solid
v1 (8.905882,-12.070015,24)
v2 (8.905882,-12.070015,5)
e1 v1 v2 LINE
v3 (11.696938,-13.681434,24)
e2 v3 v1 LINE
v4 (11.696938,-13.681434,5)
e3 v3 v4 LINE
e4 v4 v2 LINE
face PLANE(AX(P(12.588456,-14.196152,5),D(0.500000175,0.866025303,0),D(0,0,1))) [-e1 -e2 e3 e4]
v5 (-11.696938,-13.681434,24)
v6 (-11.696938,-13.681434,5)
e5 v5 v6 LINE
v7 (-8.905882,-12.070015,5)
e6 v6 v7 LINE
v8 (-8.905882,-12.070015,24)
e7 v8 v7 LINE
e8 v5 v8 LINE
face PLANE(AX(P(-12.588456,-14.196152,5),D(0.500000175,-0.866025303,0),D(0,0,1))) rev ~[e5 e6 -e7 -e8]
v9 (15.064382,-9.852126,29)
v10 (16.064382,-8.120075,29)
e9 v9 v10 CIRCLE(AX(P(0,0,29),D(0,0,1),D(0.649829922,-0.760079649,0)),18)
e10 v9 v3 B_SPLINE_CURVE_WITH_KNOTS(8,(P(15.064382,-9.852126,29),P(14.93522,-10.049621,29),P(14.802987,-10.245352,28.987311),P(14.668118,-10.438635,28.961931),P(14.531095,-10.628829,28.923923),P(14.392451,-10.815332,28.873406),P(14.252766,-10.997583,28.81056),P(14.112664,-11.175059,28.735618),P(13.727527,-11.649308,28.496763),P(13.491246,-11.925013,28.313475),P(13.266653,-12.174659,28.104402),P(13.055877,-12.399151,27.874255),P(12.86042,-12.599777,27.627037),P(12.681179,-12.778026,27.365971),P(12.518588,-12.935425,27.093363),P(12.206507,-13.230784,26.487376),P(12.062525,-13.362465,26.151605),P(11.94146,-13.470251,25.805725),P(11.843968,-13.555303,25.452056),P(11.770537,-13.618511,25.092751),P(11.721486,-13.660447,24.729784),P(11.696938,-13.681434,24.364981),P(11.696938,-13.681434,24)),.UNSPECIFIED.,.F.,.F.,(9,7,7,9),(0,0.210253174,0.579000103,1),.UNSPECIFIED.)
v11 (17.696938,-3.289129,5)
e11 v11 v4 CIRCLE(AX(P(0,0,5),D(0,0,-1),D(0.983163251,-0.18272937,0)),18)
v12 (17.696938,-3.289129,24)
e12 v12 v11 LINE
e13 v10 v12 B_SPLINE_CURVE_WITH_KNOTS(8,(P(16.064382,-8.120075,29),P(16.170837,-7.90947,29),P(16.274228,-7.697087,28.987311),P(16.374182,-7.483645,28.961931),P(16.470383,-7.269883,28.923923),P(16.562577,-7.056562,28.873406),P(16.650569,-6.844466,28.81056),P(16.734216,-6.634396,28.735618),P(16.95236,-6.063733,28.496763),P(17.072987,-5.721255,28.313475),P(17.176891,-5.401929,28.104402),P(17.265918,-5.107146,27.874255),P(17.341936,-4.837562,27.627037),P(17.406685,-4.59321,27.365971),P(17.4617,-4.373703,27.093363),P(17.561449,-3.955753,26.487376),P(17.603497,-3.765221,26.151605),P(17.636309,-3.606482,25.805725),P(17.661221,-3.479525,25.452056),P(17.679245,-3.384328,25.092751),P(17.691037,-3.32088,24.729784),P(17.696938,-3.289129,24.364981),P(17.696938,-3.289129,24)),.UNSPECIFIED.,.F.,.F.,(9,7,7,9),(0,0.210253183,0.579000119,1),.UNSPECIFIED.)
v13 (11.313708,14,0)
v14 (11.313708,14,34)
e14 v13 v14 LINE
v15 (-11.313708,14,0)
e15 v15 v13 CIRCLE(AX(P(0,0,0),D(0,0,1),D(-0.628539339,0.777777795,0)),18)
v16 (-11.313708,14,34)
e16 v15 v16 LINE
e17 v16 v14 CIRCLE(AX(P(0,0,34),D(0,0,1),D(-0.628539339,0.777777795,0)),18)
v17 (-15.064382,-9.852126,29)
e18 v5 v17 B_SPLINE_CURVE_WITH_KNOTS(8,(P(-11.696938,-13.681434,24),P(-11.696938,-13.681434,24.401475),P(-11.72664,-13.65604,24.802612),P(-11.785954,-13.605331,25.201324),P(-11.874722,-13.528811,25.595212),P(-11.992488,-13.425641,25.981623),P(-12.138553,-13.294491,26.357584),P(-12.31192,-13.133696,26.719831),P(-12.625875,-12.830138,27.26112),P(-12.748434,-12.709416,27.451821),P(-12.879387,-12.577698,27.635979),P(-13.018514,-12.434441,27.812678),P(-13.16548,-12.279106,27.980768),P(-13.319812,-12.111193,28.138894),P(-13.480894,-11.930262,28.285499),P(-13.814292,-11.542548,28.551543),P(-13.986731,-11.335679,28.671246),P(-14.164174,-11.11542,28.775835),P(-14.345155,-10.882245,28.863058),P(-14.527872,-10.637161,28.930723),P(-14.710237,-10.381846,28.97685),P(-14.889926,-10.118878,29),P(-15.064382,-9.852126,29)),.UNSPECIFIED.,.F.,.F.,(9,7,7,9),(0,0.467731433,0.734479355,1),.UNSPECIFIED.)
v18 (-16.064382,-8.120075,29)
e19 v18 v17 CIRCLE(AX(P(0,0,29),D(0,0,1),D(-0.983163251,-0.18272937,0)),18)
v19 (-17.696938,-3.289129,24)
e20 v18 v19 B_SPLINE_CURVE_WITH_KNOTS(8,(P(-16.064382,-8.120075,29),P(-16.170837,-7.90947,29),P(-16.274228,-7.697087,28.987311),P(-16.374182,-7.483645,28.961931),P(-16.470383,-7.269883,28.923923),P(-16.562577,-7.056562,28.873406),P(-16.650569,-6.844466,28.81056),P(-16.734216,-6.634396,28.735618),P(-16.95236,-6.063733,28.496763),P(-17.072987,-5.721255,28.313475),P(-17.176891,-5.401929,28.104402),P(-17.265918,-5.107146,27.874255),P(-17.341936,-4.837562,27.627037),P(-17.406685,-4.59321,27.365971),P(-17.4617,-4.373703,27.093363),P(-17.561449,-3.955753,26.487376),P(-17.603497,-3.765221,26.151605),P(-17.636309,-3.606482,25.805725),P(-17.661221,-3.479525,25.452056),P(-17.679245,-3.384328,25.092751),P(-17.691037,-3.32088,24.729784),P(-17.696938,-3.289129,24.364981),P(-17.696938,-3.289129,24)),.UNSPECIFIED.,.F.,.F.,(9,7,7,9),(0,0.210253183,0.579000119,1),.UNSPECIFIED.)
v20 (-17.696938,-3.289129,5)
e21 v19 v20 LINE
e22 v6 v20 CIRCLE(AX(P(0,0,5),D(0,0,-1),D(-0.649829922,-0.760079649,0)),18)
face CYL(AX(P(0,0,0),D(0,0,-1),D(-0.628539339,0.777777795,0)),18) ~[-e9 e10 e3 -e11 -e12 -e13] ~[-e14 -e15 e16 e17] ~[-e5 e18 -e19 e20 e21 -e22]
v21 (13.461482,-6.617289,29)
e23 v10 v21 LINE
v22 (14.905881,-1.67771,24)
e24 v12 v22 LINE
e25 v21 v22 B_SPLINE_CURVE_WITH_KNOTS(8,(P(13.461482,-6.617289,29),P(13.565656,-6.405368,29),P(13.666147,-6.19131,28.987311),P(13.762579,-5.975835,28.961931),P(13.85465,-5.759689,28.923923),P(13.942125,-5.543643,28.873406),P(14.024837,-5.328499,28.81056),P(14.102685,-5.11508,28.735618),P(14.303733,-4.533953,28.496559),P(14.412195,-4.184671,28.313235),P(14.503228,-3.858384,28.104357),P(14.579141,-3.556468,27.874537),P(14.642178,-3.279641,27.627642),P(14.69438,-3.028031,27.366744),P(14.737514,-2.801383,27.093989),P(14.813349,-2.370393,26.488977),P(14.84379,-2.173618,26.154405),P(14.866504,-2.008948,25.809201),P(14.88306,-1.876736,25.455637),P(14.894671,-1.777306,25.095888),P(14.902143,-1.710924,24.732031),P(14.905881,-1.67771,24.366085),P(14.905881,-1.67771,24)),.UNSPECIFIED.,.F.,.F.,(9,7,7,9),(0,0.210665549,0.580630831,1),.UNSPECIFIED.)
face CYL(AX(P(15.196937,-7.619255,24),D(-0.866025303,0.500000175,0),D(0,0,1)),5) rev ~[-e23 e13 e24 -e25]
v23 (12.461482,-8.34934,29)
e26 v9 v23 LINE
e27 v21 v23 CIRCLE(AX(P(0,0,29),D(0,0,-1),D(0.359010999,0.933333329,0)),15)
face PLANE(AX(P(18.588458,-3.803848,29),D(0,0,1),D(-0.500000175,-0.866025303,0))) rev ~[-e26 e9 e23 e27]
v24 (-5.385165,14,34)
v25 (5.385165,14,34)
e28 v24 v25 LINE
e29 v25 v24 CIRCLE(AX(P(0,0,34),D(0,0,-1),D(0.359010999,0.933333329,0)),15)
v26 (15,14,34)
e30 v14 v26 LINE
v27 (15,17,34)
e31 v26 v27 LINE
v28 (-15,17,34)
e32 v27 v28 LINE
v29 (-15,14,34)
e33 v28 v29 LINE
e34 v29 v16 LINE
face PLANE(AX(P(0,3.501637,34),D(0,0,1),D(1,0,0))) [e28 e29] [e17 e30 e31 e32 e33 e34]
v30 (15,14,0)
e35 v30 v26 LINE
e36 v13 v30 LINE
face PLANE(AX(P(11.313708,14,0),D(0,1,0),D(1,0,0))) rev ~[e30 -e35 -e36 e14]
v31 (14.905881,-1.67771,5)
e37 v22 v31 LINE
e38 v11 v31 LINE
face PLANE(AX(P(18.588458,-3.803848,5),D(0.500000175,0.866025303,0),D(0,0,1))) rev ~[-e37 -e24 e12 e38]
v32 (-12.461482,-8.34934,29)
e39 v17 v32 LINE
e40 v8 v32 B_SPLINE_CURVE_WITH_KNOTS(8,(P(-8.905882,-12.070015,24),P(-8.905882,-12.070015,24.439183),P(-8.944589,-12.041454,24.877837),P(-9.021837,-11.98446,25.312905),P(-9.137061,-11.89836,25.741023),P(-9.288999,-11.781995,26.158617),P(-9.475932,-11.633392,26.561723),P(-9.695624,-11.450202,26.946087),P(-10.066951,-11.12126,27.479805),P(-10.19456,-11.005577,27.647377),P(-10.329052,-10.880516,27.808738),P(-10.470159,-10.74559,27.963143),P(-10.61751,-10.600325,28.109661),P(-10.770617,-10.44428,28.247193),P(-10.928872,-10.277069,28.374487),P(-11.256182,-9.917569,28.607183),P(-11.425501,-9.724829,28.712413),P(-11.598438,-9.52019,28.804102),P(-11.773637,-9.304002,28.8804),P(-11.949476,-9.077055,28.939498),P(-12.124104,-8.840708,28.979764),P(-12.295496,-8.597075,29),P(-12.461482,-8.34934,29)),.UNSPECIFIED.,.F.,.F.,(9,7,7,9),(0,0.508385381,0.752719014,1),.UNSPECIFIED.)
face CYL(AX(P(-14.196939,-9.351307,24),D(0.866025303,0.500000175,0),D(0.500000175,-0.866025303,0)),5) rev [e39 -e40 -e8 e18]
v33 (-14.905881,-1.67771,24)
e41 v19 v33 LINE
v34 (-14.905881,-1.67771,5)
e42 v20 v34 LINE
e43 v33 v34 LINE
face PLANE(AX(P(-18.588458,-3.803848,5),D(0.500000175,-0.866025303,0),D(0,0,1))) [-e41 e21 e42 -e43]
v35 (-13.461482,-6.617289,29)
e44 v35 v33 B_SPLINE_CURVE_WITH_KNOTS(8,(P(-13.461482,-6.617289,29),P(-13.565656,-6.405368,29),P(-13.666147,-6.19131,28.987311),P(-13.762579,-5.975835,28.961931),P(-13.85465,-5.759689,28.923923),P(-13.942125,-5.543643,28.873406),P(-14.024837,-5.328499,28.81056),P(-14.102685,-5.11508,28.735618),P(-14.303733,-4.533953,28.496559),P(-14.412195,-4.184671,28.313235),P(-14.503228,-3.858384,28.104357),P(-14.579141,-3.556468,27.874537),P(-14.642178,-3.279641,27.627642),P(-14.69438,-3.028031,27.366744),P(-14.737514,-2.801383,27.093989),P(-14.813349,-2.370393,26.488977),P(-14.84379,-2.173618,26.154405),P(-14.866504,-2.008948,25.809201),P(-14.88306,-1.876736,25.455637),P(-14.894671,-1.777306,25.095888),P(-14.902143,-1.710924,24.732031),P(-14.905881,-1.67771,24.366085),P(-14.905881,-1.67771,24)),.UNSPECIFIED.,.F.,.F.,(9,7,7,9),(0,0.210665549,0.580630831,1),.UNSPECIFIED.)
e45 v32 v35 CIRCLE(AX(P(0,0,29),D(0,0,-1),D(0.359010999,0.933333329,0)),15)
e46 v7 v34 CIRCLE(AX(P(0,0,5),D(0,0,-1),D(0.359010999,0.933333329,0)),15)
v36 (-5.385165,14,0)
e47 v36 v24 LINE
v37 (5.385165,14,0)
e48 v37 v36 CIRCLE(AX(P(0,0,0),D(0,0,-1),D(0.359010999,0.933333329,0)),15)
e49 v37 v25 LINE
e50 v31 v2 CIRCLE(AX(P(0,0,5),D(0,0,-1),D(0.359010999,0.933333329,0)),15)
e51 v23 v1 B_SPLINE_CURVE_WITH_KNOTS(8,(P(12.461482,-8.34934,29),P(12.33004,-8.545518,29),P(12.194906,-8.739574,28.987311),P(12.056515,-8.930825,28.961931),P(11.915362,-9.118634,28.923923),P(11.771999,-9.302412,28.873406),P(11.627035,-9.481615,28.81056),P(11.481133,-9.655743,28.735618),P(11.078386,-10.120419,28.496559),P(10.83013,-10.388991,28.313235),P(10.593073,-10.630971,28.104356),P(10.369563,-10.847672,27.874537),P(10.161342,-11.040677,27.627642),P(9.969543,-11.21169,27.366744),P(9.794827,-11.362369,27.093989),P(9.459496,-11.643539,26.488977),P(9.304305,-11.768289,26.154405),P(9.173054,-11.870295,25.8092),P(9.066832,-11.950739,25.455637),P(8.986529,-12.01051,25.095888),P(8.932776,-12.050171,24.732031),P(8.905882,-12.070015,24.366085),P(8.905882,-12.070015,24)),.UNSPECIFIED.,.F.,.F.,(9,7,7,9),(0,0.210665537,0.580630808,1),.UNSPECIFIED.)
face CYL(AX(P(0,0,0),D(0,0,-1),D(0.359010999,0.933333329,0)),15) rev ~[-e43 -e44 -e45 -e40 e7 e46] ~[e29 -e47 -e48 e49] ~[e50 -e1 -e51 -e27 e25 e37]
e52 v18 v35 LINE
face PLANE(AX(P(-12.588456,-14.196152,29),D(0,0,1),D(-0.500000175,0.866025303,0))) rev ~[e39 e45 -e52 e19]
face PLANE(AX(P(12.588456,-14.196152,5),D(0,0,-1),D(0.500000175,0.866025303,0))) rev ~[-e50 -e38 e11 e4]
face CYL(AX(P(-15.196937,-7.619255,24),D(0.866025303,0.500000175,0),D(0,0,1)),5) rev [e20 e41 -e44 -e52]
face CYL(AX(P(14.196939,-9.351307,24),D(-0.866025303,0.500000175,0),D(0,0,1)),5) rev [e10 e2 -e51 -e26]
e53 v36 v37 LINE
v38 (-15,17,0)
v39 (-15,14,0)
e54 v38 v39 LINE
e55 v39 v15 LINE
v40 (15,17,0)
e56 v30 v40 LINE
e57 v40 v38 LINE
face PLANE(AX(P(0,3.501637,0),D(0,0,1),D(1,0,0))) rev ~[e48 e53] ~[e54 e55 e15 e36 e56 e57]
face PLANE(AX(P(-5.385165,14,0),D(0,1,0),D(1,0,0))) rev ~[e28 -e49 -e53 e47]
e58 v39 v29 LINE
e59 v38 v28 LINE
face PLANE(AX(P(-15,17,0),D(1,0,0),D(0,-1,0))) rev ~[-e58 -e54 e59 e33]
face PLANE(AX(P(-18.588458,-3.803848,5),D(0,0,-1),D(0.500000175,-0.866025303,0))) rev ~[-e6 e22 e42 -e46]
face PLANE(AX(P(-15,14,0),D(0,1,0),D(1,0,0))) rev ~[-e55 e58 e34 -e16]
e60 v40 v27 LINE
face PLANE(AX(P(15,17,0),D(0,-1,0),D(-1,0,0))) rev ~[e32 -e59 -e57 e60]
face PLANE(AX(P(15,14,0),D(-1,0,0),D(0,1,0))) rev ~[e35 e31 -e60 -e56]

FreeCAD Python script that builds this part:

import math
import FreeCAD as App
import Part
import Sketcher
from FreeCAD import Vector
Q = App.Units.Quantity


def edges_at(feature, points):
    """Names of the edges that pass closest to the given points."""
    edges = feature.Shape.Edges
    near = lambda p: min(range(len(edges)), key=lambda i: edges[i].distToShape(Part.Vertex(*p))[0])
    return sorted({f"Edge{near(p) + 1}" for p in points})


def add_polygon(sketch, points):
    """Adds a closed chain of lines whose ends are joined by coincident constraints."""
    first, n = sketch.GeometryCount, len(points)
    for a, b in zip(points, points[1:] + points[:1]):
        sketch.addGeometry(Part.LineSegment(App.Vector(*a, 0), App.Vector(*b, 0)), False)
    for i in range(n):
        sketch.addConstraint(Sketcher.Constraint("Coincident", first + i, 2, first + (i + 1) % n, 1))

doc = App.newDocument("Part")
params = doc.addObject("Spreadsheet::Sheet", "Params")
for row, (alias, value) in enumerate([
    ("sketch1_radius", "18 mm"),
    ("sketch1_radius2", "15 mm"),
    ("sketch1_width", "30 mm"),
    ("sketch1_height", "3 mm"),
    ("pad1_length", "34 mm"),
    ("sketch2_width", "12 mm"),
    ("sketch2_height", "24 mm"),
    ("pocket1_length", "10 mm"),
    ("sketch3_width", "12 mm"),
    ("sketch3_height", "24 mm"),
    ("pocket2_length", "10 mm"),
    ("fillet_radius", "5 mm"),
], start=1):
    params.set(f"A{row}", alias)
    params.set(f"B{row}", "=" + value)
    params.setAlias(f"B{row}", alias)

body = doc.addObject("PartDesign::Body", "Body")

# Sketch on XY plane
sketch1 = body.newObject("Sketcher::SketchObject", "Sketch")
sketch1.AttachmentSupport = (doc.getObject("XY_Plane"), [""])
sketch1.MapMode = "FlatFace"
sketch1.addGeometry(Part.LineSegment(Vector(-15, 14, 0), Vector(-11.3, 14, 0)), False)
sketch1.addGeometry(Part.ArcOfCircle(Part.Circle(Vector(0, 0, 0), Vector(0, 0, 1), 18), math.radians(129), math.radians(411)), False)
sketch1.addGeometry(Part.LineSegment(Vector(11.3, 14, 0), Vector(15, 14, 0)), False)
sketch1.addGeometry(Part.LineSegment(Vector(15, 14, 0), Vector(15, 17, 0)), False)
sketch1.addGeometry(Part.LineSegment(Vector(15, 17, 0), Vector(-15, 17, 0)), False)
sketch1.addGeometry(Part.LineSegment(Vector(-15, 17, 0), Vector(-15, 14, 0)), False)
sketch1.addGeometry(Part.LineSegment(Vector(-5.4, 14, 0), Vector(5.4, 14, 0)), False)
sketch1.addGeometry(Part.ArcOfCircle(Part.Circle(Vector(0, 0, 0), Vector(0, 0, 1), 15), math.radians(111), math.radians(429)), False)
sketch1.addConstraint(Sketcher.Constraint("Coincident", 0, 2, 1, 1))
sketch1.addConstraint(Sketcher.Constraint("Coincident", 1, 2, 2, 1))
sketch1.addConstraint(Sketcher.Constraint("Coincident", 2, 2, 3, 1))
sketch1.addConstraint(Sketcher.Constraint("Coincident", 3, 2, 4, 1))
sketch1.addConstraint(Sketcher.Constraint("Coincident", 4, 2, 5, 1))
sketch1.addConstraint(Sketcher.Constraint("Coincident", 5, 2, 0, 1))
sketch1.addConstraint(Sketcher.Constraint("Coincident", 6, 1, 7, 1))
sketch1.addConstraint(Sketcher.Constraint("Coincident", 7, 2, 6, 2))
sketch1.addConstraint(Sketcher.Constraint("Horizontal", 0))
sketch1.addConstraint(Sketcher.Constraint("Horizontal", 2))
sketch1.addConstraint(Sketcher.Constraint("Vertical", 3))
sketch1.addConstraint(Sketcher.Constraint("Horizontal", 4))
sketch1.addConstraint(Sketcher.Constraint("Vertical", 5))
sketch1.addConstraint(Sketcher.Constraint("Horizontal", 6))
sketch1.addConstraint(Sketcher.Constraint("Coincident", 1, 3, -1, 1))
sketch1.addConstraint(Sketcher.Constraint("Coincident", 7, 3, -1, 1))
sketch1.addConstraint(Sketcher.Constraint("Symmetric", 2, 2, 5, 2, -2))
sketch1.addConstraint(Sketcher.Constraint("Horizontal", 5, 2, 6, 1))
sketch1.addConstraint(Sketcher.Constraint("Radius", 1, Q("18 mm")))
sketch1.addConstraint(Sketcher.Constraint("Radius", 7, Q("15 mm")))
sketch1.addConstraint(Sketcher.Constraint("DistanceX", 4, 2, 4, 1, Q("30 mm")))
sketch1.addConstraint(Sketcher.Constraint("DistanceY", 3, 1, 3, 2, Q("3 mm")))
sketch1.addConstraint(Sketcher.Constraint("DistanceY", -1, 1, 0, 2, Q("14 mm")))
sketch1.setExpression("Constraints[18]", "Params.sketch1_radius")
sketch1.setExpression("Constraints[19]", "Params.sketch1_radius2")
sketch1.setExpression("Constraints[20]", "Params.sketch1_width")
sketch1.setExpression("Constraints[21]", "Params.sketch1_height")
pad1 = body.newObject("PartDesign::Pad", "Pad")
pad1.Profile = sketch1
pad1.setExpression("Length", "Params.pad1_length")

# Sketch on an angled plane
sketch2 = body.newObject("Sketcher::SketchObject", "Sketch001")
sketch2.Placement = App.Placement(Vector(-15.588457, -9, 0), App.Rotation(Vector(0.500000175, -0.866025303, 0), Vector(0, 0, 1), Vector(-0.866025303, -0.500000175, 0), "ZXY"))
add_polygon(sketch2, [(-6, 29), (-6, 5), (6, 5), (6, 29)])  # lines 0-3
sketch2.addConstraint(Sketcher.Constraint("Vertical", 0))
sketch2.addConstraint(Sketcher.Constraint("Horizontal", 1))
sketch2.addConstraint(Sketcher.Constraint("Vertical", 2))
sketch2.addConstraint(Sketcher.Constraint("Horizontal", 3))
sketch2.addConstraint(Sketcher.Constraint("DistanceX", 1, 1, 1, 2, Q("12 mm")))
sketch2.addConstraint(Sketcher.Constraint("DistanceY", 0, 2, 0, 1, Q("24 mm")))
sketch2.addConstraint(Sketcher.Constraint("DistanceX", 0, 2, -1, 1, Q("6 mm")))
sketch2.addConstraint(Sketcher.Constraint("DistanceY", -1, 1, 0, 2, Q("5 mm")))
sketch2.setExpression("Constraints[8]", "Params.sketch2_width")
sketch2.setExpression("Constraints[9]", "Params.sketch2_height")
pocket1 = body.newObject("PartDesign::Pocket", "Pocket")
pocket1.Profile = sketch2
pocket1.setExpression("Length", "Params.pocket1_length")

# Sketch on an angled plane
sketch3 = body.newObject("Sketcher::SketchObject", "Sketch002")
sketch3.Placement = App.Placement(Vector(15.588457, -9, 0), App.Rotation(Vector(0.500000175, 0.866025303, 0), Vector(0, 0, 1), Vector(0.866025303, -0.500000175, 0), "ZXY"))
add_polygon(sketch3, [(-6, 29), (-6, 5), (6, 5), (6, 29)])  # lines 0-3
sketch3.addConstraint(Sketcher.Constraint("Vertical", 0))
sketch3.addConstraint(Sketcher.Constraint("Horizontal", 1))
sketch3.addConstraint(Sketcher.Constraint("Vertical", 2))
sketch3.addConstraint(Sketcher.Constraint("Horizontal", 3))
sketch3.addConstraint(Sketcher.Constraint("DistanceX", 1, 1, 1, 2, Q("12 mm")))
sketch3.addConstraint(Sketcher.Constraint("DistanceY", 0, 2, 0, 1, Q("24 mm")))
sketch3.addConstraint(Sketcher.Constraint("DistanceX", 0, 2, -1, 1, Q("6 mm")))
sketch3.addConstraint(Sketcher.Constraint("DistanceY", -1, 1, 0, 2, Q("5 mm")))
sketch3.setExpression("Constraints[8]", "Params.sketch3_width")
sketch3.setExpression("Constraints[9]", "Params.sketch3_height")
pocket2 = body.newObject("PartDesign::Pocket", "Pocket001")
pocket2.Profile = sketch3
pocket2.setExpression("Length", "Params.pocket2_length")
doc.recompute()

fillet = body.newObject("PartDesign::Fillet", "Fillet")
fillet.Base = (pocket2, edges_at(pocket2, [
    (16.301, -2.483, 29),
    (10.301, -12.876, 29),
    (-16.301, -2.483, 29),
    (-10.301, -12.876, 29),
]))
fillet.setExpression("Radius", "Params.fillet_radius")

doc.recompute()
